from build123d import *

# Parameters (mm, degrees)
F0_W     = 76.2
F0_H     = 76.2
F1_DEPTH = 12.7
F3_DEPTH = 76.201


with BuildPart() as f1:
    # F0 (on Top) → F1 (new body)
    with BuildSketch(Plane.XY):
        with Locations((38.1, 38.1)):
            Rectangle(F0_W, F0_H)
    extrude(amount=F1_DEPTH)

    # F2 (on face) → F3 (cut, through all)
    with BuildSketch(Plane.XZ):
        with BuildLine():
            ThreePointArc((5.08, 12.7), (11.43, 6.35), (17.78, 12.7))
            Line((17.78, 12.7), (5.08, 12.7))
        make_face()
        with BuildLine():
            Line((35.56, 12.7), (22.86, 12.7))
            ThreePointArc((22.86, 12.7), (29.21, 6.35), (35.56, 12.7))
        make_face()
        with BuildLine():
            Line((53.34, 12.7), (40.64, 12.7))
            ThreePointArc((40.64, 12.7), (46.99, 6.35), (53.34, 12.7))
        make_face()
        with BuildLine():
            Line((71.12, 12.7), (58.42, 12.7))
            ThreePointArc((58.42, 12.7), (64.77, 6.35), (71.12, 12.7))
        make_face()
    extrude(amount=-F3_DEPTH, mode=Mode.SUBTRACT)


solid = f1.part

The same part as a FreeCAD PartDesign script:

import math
import FreeCAD as App
import Part
import Sketcher
from FreeCAD import Vector
Q = App.Units.Quantity


def add_polygon(sketch, points):
    """Adds a closed chain of lines whose ends are joined by coincident constraints."""
    first, n = sketch.GeometryCount, len(points)
    for a, b in zip(points, points[1:] + points[:1]):
        sketch.addGeometry(Part.LineSegment(App.Vector(*a, 0), App.Vector(*b, 0)), False)
    for i in range(n):
        sketch.addConstraint(Sketcher.Constraint("Coincident", first + i, 2, first + (i + 1) % n, 1))

doc = App.newDocument("Part")
body = doc.addObject("PartDesign::Body", "Body")

# Sketch on XY plane
sketch1 = doc.addObject("Sketcher::SketchObject", "Sketch")
body.addObject(sketch1)
sketch1.AttachmentSupport = (doc.XY_Plane, [""])
sketch1.MapMode = "FlatFace"
add_polygon(sketch1, [(0, 76), (0, 0), (76, 0), (76, 76)])  # lines 0-3
sketch1.addConstraint([
    Sketcher.Constraint("Vertical", 0),
    Sketcher.Constraint("Horizontal", 1),
    Sketcher.Constraint("Vertical", 2),
    Sketcher.Constraint("Horizontal", 3),
    Sketcher.Constraint("Coincident", 0, 2, -1, 1),
    Sketcher.Constraint("Equal", 3, 0),
    Sketcher.Constraint("DistanceX", 1, 1, 1, 2, Q("3 in")),
])
pad1 = doc.addObject("PartDesign::Pad", "Pad")
body.addObject(pad1)
pad1.Profile = sketch1
pad1.Length = Q("0.5 in")

# Sketch on XZ plane
sketch2 = doc.addObject("Sketcher::SketchObject", "Sketch001")
body.addObject(sketch2)
sketch2.AttachmentSupport = (doc.XZ_Plane, [""])
sketch2.MapMode = "FlatFace"
sketch2.addGeometry([
    Part.ArcOfCircle(Part.Circle(Vector(11, 13, 0), Vector(0, 0, 1), 6), math.radians(180), math.radians(360)),  # 0
    Part.LineSegment(Vector(18, 13, 0), Vector(5, 13, 0)),  # 1
    Part.LineSegment(Vector(36, 13, 0), Vector(23, 13, 0)),  # 2
    Part.ArcOfCircle(Part.Circle(Vector(29, 13, 0), Vector(0, 0, 1), 6), math.radians(180), math.radians(360)),  # 3
    Part.LineSegment(Vector(53, 13, 0), Vector(41, 13, 0)),  # 4
    Part.ArcOfCircle(Part.Circle(Vector(47, 13, 0), Vector(0, 0, 1), 6), math.radians(180), math.radians(360)),  # 5
    Part.LineSegment(Vector(71, 13, 0), Vector(58, 13, 0)),  # 6
    Part.ArcOfCircle(Part.Circle(Vector(65, 13, 0), Vector(0, 0, 1), 6), math.radians(180), math.radians(360)),  # 7
], False)
sketch2.addConstraint([
    Sketcher.Constraint("Coincident", 0, 1, 1, 2),
    Sketcher.Constraint("Coincident", 1, 1, 0, 2),
    Sketcher.Constraint("Coincident", 2, 1, 3, 2),
    Sketcher.Constraint("Coincident", 3, 1, 2, 2),
    Sketcher.Constraint("Coincident", 4, 1, 5, 2),
    Sketcher.Constraint("Coincident", 5, 1, 4, 2),
    Sketcher.Constraint("Coincident", 6, 1, 7, 2),
    Sketcher.Constraint("Coincident", 7, 1, 6, 2),
    Sketcher.Constraint("Horizontal", 1),
    Sketcher.Constraint("Horizontal", 2),
    Sketcher.Constraint("Horizontal", 4),
    Sketcher.Constraint("Horizontal", 6),
    Sketcher.Constraint("Equal", 0, 3),
    Sketcher.Constraint("Equal", 3, 5),
    Sketcher.Constraint("Equal", 5, 7),
    Sketcher.Constraint("Horizontal", 0, 3, 3, 3),
    Sketcher.Constraint("Horizontal", 3, 3, 5, 3),
    Sketcher.Constraint("Horizontal", 5, 3, 7, 3),
    Sketcher.Constraint("Horizontal", 7, 3, 0, 1),
    Sketcher.Constraint("Horizontal", 1, 1, 2, 1),
    Sketcher.Constraint("Horizontal", 3, 1, 4, 1),
    Sketcher.Constraint("Horizontal", 5, 1, 6, 1),
    Sketcher.Constraint("Radius", 0, Q("0.25 in")),
    Sketcher.Constraint("DistanceY", -1, 1, 0, 3, Q("0.5 in")),
    Sketcher.Constraint("DistanceX", -1, 1, 0, 1, Q("0.2 in")),
    Sketcher.Constraint("DistanceX", -1, 1, 2, 1, Q("1.4 in")),
    Sketcher.Constraint("DistanceX", -1, 1, 4, 1, Q("2.1 in")),
    Sketcher.Constraint("DistanceX", -1, 1, 6, 1, Q("2.8 in")),
])
pocket1 = doc.addObject("PartDesign::Pocket", "Pocket")
body.addObject(pocket1)
pocket1.Profile = sketch2
pocket1.Type = "ThroughAll"

doc.recompute()
